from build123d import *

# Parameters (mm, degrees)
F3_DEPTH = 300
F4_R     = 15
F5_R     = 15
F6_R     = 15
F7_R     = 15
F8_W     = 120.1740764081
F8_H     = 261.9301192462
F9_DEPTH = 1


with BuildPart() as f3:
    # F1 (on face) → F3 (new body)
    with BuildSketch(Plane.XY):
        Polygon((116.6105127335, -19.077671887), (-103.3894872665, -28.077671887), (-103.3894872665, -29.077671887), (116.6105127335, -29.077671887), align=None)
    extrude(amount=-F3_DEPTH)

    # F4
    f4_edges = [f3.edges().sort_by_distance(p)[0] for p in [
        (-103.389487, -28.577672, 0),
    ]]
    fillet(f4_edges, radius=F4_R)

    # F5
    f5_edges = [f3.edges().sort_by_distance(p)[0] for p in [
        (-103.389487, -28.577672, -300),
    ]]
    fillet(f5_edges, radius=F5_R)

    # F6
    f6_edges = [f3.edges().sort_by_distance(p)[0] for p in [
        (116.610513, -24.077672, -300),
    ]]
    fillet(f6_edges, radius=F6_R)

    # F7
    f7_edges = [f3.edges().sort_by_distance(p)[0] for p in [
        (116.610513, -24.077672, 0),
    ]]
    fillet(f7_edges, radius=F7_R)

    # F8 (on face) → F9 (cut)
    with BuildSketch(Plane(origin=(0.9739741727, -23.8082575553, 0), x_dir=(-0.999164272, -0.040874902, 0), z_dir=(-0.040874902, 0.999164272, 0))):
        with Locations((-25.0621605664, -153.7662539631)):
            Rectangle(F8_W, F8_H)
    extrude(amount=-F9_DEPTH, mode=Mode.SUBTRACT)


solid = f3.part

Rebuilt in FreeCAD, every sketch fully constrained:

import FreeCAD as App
import Part
import Sketcher
from FreeCAD import Vector
Q = App.Units.Quantity


def edges_at(feature, points):
    """Names of the edges that pass closest to the given points."""
    edges = feature.Shape.Edges
    near = lambda p: min(range(len(edges)), key=lambda i: edges[i].distToShape(Part.Vertex(*p))[0])
    return sorted({f"Edge{near(p) + 1}" for p in points})


def add_polygon(sketch, points):
    """Adds a closed chain of lines whose ends are joined by coincident constraints."""
    first, n = sketch.GeometryCount, len(points)
    for a, b in zip(points, points[1:] + points[:1]):
        sketch.addGeometry(Part.LineSegment(App.Vector(*a, 0), App.Vector(*b, 0)), False)
    for i in range(n):
        sketch.addConstraint(Sketcher.Constraint("Coincident", first + i, 2, first + (i + 1) % n, 1))

doc = App.newDocument("Part")
body = doc.addObject("PartDesign::Body", "Body")

# Sketch on XY plane
sketch1 = doc.addObject("Sketcher::SketchObject", "Sketch")
body.addObject(sketch1)
sketch1.AttachmentSupport = (doc.XY_Plane, [""])
sketch1.MapMode = "FlatFace"
add_polygon(sketch1, [(116.6, -19.1), (-103.4, -28.1), (-103.4, -29.1), (116.6, -29.1)])  # lines 0-3
sketch1.addConstraint(Sketcher.Constraint("Vertical", 1))
sketch1.addConstraint(Sketcher.Constraint("Horizontal", 2))
sketch1.addConstraint(Sketcher.Constraint("Vertical", 3))
sketch1.addConstraint(Sketcher.Constraint("DistanceX", 2, 1, 2, 2, Q("220 mm")))
sketch1.addConstraint(Sketcher.Constraint("DistanceY", 1, 2, 1, 1, Q("1 mm")))
sketch1.addConstraint(Sketcher.Constraint("DistanceY", 3, 1, 3, 2, Q("10 mm")))
sketch1.addConstraint(Sketcher.Constraint("DistanceY", 0, 2, -1, 1, Q("28.077672 mm")))
sketch1.addConstraint(Sketcher.Constraint("DistanceX", 0, 2, -1, 1, Q("103.389487 mm")))
pad1 = doc.addObject("PartDesign::Pad", "Pad")
body.addObject(pad1)
pad1.Profile = sketch1
pad1.Length = 300
pad1.Reversed = True
doc.recompute()

fillet = doc.addObject("PartDesign::Fillet", "Fillet")
body.addObject(fillet)
fillet.Base = (pad1, edges_at(pad1, [(-103.389, -28.578, 0)]))
fillet.Radius = 15
doc.recompute()

fillet2 = doc.addObject("PartDesign::Fillet", "Fillet001")
body.addObject(fillet2)
fillet2.Base = (fillet, edges_at(fillet, [(-103.389, -28.578, -300)]))
fillet2.Radius = 15
doc.recompute()

fillet3 = doc.addObject("PartDesign::Fillet", "Fillet002")
body.addObject(fillet3)
fillet3.Base = (fillet2, edges_at(fillet2, [(116.611, -24.078, -300)]))
fillet3.Radius = 15
doc.recompute()

fillet4 = doc.addObject("PartDesign::Fillet", "Fillet003")
body.addObject(fillet4)
fillet4.Base = (fillet3, edges_at(fillet3, [(116.611, -24.078, 0)]))
fillet4.Radius = 15

# Sketch on an angled plane
sketch2 = doc.addObject("Sketcher::SketchObject", "Sketch001")
body.addObject(sketch2)
sketch2.Placement = App.Placement(Vector(0.973974, -23.808258, 0), App.Rotation(Vector(-0.999164272, -0.040874902, 0), Vector(0, 0, 1), Vector(-0.040874902, 0.999164272, 0), "ZXY"))
add_polygon(sketch2, [(-85, -23), (-85, -285), (35, -285), (35, -23)])  # lines 0-3
sketch2.addConstraint(Sketcher.Constraint("Vertical", 0))
sketch2.addConstraint(Sketcher.Constraint("Horizontal", 1))
sketch2.addConstraint(Sketcher.Constraint("Vertical", 2))
sketch2.addConstraint(Sketcher.Constraint("Horizontal", 3))
sketch2.addConstraint(Sketcher.Constraint("DistanceY", 0, 2, 0, 1, Q("261.930119 mm")))
sketch2.addConstraint(Sketcher.Constraint("DistanceX", 0, 2, -1, 1, Q("85.149199 mm")))
sketch2.addConstraint(Sketcher.Constraint("DistanceX", 1, 1, 1, 2, Q("120.174076 mm")))
sketch2.addConstraint(Sketcher.Constraint("DistanceY", 0, 2, -1, 1, Q("284.731314 mm")))
pocket1 = doc.addObject("PartDesign::Pocket", "Pocket")
body.addObject(pocket1)
pocket1.Profile = sketch2
pocket1.Length = 1

doc.recompute()
